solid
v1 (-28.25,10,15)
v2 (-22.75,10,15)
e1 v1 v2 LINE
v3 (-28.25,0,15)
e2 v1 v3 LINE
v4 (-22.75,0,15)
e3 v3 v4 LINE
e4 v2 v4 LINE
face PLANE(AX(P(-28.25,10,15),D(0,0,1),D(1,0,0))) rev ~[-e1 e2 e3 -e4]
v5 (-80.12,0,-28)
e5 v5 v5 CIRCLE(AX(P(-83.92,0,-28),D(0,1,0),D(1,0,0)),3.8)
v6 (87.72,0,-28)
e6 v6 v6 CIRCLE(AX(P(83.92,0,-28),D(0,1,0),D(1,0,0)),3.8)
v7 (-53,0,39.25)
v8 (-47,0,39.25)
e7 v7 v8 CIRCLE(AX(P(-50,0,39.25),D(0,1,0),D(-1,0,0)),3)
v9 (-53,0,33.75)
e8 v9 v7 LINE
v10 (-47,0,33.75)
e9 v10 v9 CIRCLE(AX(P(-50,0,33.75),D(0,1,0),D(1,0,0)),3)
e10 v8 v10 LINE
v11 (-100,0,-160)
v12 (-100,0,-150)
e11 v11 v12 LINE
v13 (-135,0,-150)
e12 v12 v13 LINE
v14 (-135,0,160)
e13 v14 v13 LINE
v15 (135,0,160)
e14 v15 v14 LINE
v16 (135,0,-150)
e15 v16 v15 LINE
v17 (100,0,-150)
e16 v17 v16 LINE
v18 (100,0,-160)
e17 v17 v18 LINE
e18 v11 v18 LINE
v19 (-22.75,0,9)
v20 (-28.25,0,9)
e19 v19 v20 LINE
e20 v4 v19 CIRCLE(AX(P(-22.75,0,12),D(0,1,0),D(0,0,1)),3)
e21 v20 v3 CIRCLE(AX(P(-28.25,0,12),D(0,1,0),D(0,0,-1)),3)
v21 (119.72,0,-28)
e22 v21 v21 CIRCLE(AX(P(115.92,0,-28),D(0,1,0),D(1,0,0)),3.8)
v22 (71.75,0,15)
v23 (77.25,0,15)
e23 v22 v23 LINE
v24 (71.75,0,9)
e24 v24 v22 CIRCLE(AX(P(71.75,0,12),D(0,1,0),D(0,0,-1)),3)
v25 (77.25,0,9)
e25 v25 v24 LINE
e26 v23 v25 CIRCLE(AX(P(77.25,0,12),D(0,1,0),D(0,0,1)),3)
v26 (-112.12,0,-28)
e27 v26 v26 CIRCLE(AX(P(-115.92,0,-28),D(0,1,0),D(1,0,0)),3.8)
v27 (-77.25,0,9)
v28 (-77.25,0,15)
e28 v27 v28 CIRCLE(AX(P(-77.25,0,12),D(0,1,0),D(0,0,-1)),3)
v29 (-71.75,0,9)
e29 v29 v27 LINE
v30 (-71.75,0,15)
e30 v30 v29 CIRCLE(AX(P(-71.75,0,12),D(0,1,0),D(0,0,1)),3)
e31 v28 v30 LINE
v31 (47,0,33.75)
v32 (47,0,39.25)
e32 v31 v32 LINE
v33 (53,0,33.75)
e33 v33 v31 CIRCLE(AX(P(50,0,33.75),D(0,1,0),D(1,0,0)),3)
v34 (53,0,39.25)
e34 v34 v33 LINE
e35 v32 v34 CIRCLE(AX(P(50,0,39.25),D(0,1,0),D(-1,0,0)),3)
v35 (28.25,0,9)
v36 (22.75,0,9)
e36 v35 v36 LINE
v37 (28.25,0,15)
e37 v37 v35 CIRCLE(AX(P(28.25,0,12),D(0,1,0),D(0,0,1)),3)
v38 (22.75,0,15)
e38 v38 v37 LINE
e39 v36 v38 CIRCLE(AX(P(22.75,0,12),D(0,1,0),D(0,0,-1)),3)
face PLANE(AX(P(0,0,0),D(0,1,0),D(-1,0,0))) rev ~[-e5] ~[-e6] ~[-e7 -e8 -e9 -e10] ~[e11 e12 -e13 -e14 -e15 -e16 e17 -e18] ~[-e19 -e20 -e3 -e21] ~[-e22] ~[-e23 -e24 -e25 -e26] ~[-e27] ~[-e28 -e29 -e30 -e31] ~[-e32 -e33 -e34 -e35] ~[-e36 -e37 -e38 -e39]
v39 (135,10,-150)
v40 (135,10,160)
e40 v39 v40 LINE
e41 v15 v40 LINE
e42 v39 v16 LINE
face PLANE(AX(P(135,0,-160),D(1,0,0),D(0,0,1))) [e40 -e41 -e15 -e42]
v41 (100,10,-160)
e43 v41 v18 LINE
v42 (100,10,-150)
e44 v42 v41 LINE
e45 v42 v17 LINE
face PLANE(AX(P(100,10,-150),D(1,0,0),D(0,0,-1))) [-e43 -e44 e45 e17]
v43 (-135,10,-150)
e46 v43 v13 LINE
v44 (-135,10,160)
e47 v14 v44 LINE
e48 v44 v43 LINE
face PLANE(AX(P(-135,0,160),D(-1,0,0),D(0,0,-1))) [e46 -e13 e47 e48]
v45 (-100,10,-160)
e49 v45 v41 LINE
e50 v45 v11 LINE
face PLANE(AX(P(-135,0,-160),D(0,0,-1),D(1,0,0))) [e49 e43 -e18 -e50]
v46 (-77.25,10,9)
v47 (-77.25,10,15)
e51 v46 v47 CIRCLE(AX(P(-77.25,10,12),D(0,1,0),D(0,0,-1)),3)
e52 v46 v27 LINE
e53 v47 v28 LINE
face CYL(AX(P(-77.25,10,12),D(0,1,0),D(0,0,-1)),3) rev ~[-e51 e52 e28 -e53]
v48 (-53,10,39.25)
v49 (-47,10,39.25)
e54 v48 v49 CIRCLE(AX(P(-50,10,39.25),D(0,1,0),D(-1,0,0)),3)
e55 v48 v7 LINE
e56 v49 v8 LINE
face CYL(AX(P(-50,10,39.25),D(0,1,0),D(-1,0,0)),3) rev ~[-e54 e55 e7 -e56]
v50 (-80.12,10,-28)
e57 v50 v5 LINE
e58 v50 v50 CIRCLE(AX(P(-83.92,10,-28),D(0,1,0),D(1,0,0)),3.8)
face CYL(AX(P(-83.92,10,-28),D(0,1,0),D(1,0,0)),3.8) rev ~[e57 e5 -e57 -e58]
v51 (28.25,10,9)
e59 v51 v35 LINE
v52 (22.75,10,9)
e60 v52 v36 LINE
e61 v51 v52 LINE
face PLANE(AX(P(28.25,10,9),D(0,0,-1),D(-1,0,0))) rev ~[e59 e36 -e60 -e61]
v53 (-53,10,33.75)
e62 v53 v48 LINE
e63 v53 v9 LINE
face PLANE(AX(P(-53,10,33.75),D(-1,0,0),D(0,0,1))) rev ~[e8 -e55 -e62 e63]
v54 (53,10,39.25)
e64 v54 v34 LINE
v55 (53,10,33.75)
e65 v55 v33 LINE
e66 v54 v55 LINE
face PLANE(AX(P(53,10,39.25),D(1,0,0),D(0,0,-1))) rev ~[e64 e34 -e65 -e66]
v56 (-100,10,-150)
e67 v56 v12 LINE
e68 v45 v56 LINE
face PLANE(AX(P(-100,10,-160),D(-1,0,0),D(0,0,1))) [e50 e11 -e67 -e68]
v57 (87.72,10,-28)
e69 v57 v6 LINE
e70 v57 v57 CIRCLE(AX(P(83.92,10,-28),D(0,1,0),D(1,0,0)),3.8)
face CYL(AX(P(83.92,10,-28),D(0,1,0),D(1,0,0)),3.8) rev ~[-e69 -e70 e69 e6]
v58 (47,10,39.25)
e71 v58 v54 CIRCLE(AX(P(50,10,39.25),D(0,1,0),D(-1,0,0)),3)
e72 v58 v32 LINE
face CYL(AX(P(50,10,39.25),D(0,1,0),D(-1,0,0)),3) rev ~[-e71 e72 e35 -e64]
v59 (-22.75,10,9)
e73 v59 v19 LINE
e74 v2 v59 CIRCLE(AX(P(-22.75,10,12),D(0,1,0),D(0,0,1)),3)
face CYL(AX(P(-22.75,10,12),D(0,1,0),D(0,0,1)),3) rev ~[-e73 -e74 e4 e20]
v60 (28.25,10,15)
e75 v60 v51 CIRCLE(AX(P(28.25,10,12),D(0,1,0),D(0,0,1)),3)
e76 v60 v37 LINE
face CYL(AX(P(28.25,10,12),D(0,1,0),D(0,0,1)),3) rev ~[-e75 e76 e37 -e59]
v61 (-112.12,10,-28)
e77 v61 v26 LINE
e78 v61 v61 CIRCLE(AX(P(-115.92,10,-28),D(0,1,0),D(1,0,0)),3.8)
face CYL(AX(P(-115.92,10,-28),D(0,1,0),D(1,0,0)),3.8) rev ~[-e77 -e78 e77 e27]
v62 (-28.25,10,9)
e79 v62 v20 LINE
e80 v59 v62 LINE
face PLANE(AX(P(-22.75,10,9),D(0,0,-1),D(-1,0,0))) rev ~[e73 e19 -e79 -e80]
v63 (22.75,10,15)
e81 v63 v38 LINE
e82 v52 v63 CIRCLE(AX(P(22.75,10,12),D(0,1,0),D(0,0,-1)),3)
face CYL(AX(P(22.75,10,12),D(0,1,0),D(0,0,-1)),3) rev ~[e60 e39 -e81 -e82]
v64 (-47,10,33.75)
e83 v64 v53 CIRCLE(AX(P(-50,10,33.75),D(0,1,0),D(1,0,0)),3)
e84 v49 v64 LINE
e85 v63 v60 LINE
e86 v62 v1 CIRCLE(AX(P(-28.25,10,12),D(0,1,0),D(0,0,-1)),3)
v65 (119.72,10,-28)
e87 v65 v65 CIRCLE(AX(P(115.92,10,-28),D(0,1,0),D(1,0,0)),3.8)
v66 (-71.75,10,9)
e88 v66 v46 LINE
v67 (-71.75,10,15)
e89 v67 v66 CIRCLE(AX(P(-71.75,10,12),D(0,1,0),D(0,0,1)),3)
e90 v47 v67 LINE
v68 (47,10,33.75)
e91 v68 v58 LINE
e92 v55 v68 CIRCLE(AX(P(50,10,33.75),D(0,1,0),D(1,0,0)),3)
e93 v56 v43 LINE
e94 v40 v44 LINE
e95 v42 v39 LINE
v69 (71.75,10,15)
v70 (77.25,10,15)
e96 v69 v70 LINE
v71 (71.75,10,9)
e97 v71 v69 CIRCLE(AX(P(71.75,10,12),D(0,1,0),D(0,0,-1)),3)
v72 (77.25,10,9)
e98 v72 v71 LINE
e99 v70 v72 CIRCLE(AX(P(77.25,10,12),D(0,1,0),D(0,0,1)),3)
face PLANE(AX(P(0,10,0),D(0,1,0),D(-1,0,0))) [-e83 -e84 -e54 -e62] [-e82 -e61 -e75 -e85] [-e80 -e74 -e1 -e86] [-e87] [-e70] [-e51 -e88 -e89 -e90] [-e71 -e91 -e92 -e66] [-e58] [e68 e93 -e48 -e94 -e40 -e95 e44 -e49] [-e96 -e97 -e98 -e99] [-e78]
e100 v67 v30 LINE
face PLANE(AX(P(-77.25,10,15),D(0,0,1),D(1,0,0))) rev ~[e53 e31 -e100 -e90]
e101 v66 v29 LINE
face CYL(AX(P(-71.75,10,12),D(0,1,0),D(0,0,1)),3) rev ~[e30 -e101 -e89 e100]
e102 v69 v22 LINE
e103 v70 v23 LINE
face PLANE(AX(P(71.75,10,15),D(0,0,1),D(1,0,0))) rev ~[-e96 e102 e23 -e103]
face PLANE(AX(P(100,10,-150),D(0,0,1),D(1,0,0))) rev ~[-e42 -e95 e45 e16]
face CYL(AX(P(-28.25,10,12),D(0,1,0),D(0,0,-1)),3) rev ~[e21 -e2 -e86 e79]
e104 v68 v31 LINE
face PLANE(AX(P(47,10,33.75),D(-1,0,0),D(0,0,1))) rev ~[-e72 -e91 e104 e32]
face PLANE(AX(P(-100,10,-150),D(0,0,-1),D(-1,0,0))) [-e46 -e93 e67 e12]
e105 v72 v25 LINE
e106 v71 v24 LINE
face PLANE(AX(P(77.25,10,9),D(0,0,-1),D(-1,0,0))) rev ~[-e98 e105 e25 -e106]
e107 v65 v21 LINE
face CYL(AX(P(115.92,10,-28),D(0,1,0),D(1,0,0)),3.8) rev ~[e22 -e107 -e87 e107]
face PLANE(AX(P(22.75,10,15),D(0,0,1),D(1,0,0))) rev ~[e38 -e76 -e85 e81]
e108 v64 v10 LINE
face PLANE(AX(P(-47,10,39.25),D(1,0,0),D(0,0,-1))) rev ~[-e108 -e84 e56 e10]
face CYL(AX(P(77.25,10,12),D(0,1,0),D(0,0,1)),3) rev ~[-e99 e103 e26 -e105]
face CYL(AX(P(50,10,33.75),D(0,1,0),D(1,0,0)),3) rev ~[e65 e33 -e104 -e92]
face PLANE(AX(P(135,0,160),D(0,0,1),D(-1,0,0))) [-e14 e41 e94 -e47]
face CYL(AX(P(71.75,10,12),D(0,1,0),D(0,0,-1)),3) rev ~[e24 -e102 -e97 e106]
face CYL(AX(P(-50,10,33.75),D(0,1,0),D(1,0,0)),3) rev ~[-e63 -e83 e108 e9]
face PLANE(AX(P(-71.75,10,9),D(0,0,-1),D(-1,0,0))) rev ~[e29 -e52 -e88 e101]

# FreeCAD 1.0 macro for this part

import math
import FreeCAD as App
import Part
import Sketcher
Q = App.Units.Quantity


def add_polygon(sketch, points):
    """Adds a closed chain of lines whose ends are joined by coincident constraints."""
    first, n = sketch.GeometryCount, len(points)
    for a, b in zip(points, points[1:] + points[:1]):
        sketch.addGeometry(Part.LineSegment(App.Vector(*a, 0), App.Vector(*b, 0)), False)
    for i in range(n):
        sketch.addConstraint(Sketcher.Constraint("Coincident", first + i, 2, first + (i + 1) % n, 1))

doc = App.newDocument("Part")
body = doc.addObject("PartDesign::Body", "Body")

# Sketch on XZ plane
sketch1 = body.newObject("Sketcher::SketchObject", "Sketch")
sketch1.AttachmentSupport = (doc.getObject("XZ_Plane"), [""])
sketch1.MapMode = "FlatFace"
add_polygon(sketch1, [(-135, 160), (135, 160), (135, -160), (-135, -160)])  # lines 0-3
sketch1.addConstraint([
    Sketcher.Constraint("Horizontal", 0),
    Sketcher.Constraint("Vertical", 1),
    Sketcher.Constraint("Horizontal", 2),
    Sketcher.Constraint("Vertical", 3),
    Sketcher.Constraint("Symmetric", 0, 2, 2, 2, -1, 1),
    Sketcher.Constraint("DistanceX", 0, 1, 0, 2, Q("270 mm")),
    Sketcher.Constraint("DistanceY", 1, 2, 1, 1, Q("320 mm")),
])
pad1 = body.newObject("PartDesign::Pad", "Pad")
pad1.Profile = sketch1
pad1.Length = 10
pad1.Reversed = True

# Sketch on XZ plane
sketch2 = body.newObject("Sketcher::SketchObject", "Sketch001")
sketch2.AttachmentSupport = (doc.getObject("XZ_Plane"), [""])
sketch2.MapMode = "FlatFace"
sketch2.AttachmentOffset = App.Placement(App.Vector(0, 0, -10), App.Rotation())
sketch2.addGeometry([
    Part.LineSegment(App.Vector(53, 39.2, 0), App.Vector(53, 33.8, 0)),  # 0
    Part.ArcOfCircle(Part.Circle(App.Vector(50, 33.8, 0), App.Vector(0, 0, 1), 3), math.radians(180), math.radians(360)),  # 1
    Part.LineSegment(App.Vector(47, 33.8, 0), App.Vector(47, 39.2, 0)),  # 2
    Part.ArcOfCircle(Part.Circle(App.Vector(50, 39.2, 0), App.Vector(0, 0, 1), 3), math.radians(0), math.radians(180)),  # 3
    Part.LineSegment(App.Vector(77.2, 9, 0), App.Vector(71.8, 9, 0)),  # 4
    Part.ArcOfCircle(Part.Circle(App.Vector(71.8, 12, 0), App.Vector(0, 0, 1), 3), math.radians(90), math.radians(270)),  # 5
    Part.LineSegment(App.Vector(71.8, 15, 0), App.Vector(77.2, 15, 0)),  # 6
    Part.ArcOfCircle(Part.Circle(App.Vector(77.2, 12, 0), App.Vector(0, 0, 1), 3), math.radians(-90), math.radians(90)),  # 7
    Part.LineSegment(App.Vector(22.8, 15, 0), App.Vector(28.2, 15, 0)),  # 8
    Part.ArcOfCircle(Part.Circle(App.Vector(28.2, 12, 0), App.Vector(0, 0, 1), 3), math.radians(-90), math.radians(90)),  # 9
    Part.LineSegment(App.Vector(28.2, 9, 0), App.Vector(22.8, 9, 0)),  # 10
    Part.ArcOfCircle(Part.Circle(App.Vector(22.8, 12, 0), App.Vector(0, 0, 1), 3), math.radians(90), math.radians(270)),  # 11
    Part.LineSegment(App.Vector(-22.8, 9, 0), App.Vector(-28.2, 9, 0)),  # 12
    Part.ArcOfCircle(Part.Circle(App.Vector(-28.2, 12, 0), App.Vector(0, 0, 1), 3), math.radians(90), math.radians(270)),  # 13
    Part.LineSegment(App.Vector(-28.2, 15, 0), App.Vector(-22.8, 15, 0)),  # 14
    Part.ArcOfCircle(Part.Circle(App.Vector(-22.8, 12, 0), App.Vector(0, 0, 1), 3), math.radians(-90), math.radians(90)),  # 15
    Part.LineSegment(App.Vector(-47, 39.2, 0), App.Vector(-47, 33.8, 0)),  # 16
    Part.ArcOfCircle(Part.Circle(App.Vector(-50, 33.8, 0), App.Vector(0, 0, 1), 3), math.radians(180), math.radians(360)),  # 17
    Part.LineSegment(App.Vector(-53, 33.8, 0), App.Vector(-53, 39.2, 0)),  # 18
    Part.ArcOfCircle(Part.Circle(App.Vector(-50, 39.2, 0), App.Vector(0, 0, 1), 3), math.radians(0), math.radians(180)),  # 19
    Part.LineSegment(App.Vector(-77.2, 15, 0), App.Vector(-71.8, 15, 0)),  # 20
    Part.ArcOfCircle(Part.Circle(App.Vector(-71.8, 12, 0), App.Vector(0, 0, 1), 3), math.radians(-90), math.radians(90)),  # 21
    Part.LineSegment(App.Vector(-71.8, 9, 0), App.Vector(-77.2, 9, 0)),  # 22
    Part.ArcOfCircle(Part.Circle(App.Vector(-77.2, 12, 0), App.Vector(0, 0, 1), 3), math.radians(90), math.radians(270)),  # 23
    Part.Circle(App.Vector(-115.9, -28, 0), App.Vector(0, 0, 1), 3.8),  # 24
    Part.Circle(App.Vector(-83.9, -28, 0), App.Vector(0, 0, 1), 3.8),  # 25
    Part.Circle(App.Vector(83.9, -28, 0), App.Vector(0, 0, 1), 3.8),  # 26
    Part.Circle(App.Vector(115.9, -28, 0), App.Vector(0, 0, 1), 3.8),  # 27
], False)
sketch2.addConstraint([
    Sketcher.Constraint("Tangent", 0, 2, 1, 2),
    Sketcher.Constraint("Tangent", 1, 1, 2, 1),
    Sketcher.Constraint("Tangent", 2, 2, 3, 2),
    Sketcher.Constraint("Tangent", 3, 1, 0, 1),
    Sketcher.Constraint("Tangent", 4, 2, 5, 2),
    Sketcher.Constraint("Tangent", 5, 1, 6, 1),
    Sketcher.Constraint("Tangent", 6, 2, 7, 2),
    Sketcher.Constraint("Tangent", 7, 1, 4, 1),
    Sketcher.Constraint("Tangent", 8, 2, 9, 2),
    Sketcher.Constraint("Tangent", 9, 1, 10, 1),
    Sketcher.Constraint("Tangent", 10, 2, 11, 2),
    Sketcher.Constraint("Tangent", 11, 1, 8, 1),
    Sketcher.Constraint("Tangent", 12, 2, 13, 2),
    Sketcher.Constraint("Tangent", 13, 1, 14, 1),
    Sketcher.Constraint("Tangent", 14, 2, 15, 2),
    Sketcher.Constraint("Tangent", 15, 1, 12, 1),
    Sketcher.Constraint("Tangent", 16, 2, 17, 2),
    Sketcher.Constraint("Tangent", 17, 1, 18, 1),
    Sketcher.Constraint("Tangent", 18, 2, 19, 2),
    Sketcher.Constraint("Tangent", 19, 1, 16, 1),
    Sketcher.Constraint("Tangent", 20, 2, 21, 2),
    Sketcher.Constraint("Tangent", 21, 1, 22, 1),
    Sketcher.Constraint("Tangent", 22, 2, 23, 2),
    Sketcher.Constraint("Tangent", 23, 1, 20, 1),
    Sketcher.Constraint("Vertical", 0),
    Sketcher.Constraint("Vertical", 2),
    Sketcher.Constraint("Horizontal", 4),
    Sketcher.Constraint("Horizontal", 6),
    Sketcher.Constraint("Horizontal", 8),
    Sketcher.Constraint("Horizontal", 10),
    Sketcher.Constraint("Horizontal", 12),
    Sketcher.Constraint("Horizontal", 14),
    Sketcher.Constraint("Vertical", 16),
    Sketcher.Constraint("Vertical", 18),
    Sketcher.Constraint("Horizontal", 20),
    Sketcher.Constraint("Horizontal", 22),
    Sketcher.Constraint("Equal", 3, 5),
    Sketcher.Constraint("Equal", 7, 9),
    Sketcher.Constraint("Equal", 11, 13),
    Sketcher.Constraint("Equal", 15, 17),
    Sketcher.Constraint("Equal", 19, 21),
    Sketcher.Constraint("Equal", 24, 25),
    Sketcher.Constraint("Equal", 25, 26),
    Sketcher.Constraint("Equal", 26, 27),
    Sketcher.Constraint("Symmetric", 9, 3, 13, 3, -2),
    Sketcher.Constraint("Symmetric", 1, 3, 17, 3, -2),
    Sketcher.Constraint("Symmetric", 5, 3, 21, 3, -2),
    Sketcher.Constraint("Symmetric", 25, 3, 26, 3, -2),
    Sketcher.Constraint("Symmetric", 24, 3, 27, 3, -2),
    Sketcher.Constraint("Horizontal", 7, 3, 9, 3),
    Sketcher.Constraint("Horizontal", 3, 3, 19, 3),
    Sketcher.Constraint("Horizontal", 24, 3, 25, 3),
    Sketcher.Constraint("Equal", 6, 8),
    Sketcher.Constraint("Equal", 10, 12),
    Sketcher.Constraint("Equal", 14, 20),
    Sketcher.Constraint("Equal", 22, 0),
    Sketcher.Constraint("Radius", 1, Q("3 mm")),
    Sketcher.Constraint("Diameter", 24, Q("7.6 mm")),
    Sketcher.Constraint("DistanceX", 4, 2, 4, 1, Q("5.5 mm")),
    Sketcher.Constraint("DistanceX", -1, 1, 1, 3, Q("50 mm")),
    Sketcher.Constraint("DistanceY", -1, 1, 5, 3, Q("12 mm")),
    Sketcher.Constraint("DistanceY", 24, 3, -1, 1, Q("28 mm")),
    Sketcher.Constraint("DistanceX", 9, 3, 7, 3, Q("49 mm")),
    Sketcher.Constraint("DistanceX", 13, 3, 11, 3, Q("51 mm")),
    Sketcher.Constraint("DistanceX", 24, 3, 25, 3, Q("32 mm")),
    Sketcher.Constraint("DistanceY", -1, 1, 1, 3, Q("33.75 mm")),
    Sketcher.Constraint("DistanceX", 24, 3, -1, 1, Q("115.92 mm")),
])
pocket1 = body.newObject("PartDesign::Pocket", "Pocket")
pocket1.Profile = sketch2
pocket1.Length = 10
pocket1.Reversed = True

# Sketch on XZ plane
sketch3 = body.newObject("Sketcher::SketchObject", "Sketch002")
sketch3.AttachmentSupport = (doc.getObject("XZ_Plane"), [""])
sketch3.MapMode = "FlatFace"
sketch3.AttachmentOffset = App.Placement(App.Vector(0, 0, -10), App.Rotation())
add_polygon(sketch3, [(135, -150), (135, -160), (100, -160), (100, -150)])  # lines 0-3
add_polygon(sketch3, [(-100, -150), (-100, -160), (-135, -160), (-135, -150)])  # lines 4-7
sketch3.addConstraint([
    Sketcher.Constraint("Vertical", 0),
    Sketcher.Constraint("Horizontal", 1),
    Sketcher.Constraint("Vertical", 2),
    Sketcher.Constraint("Horizontal", 3),
    Sketcher.Constraint("Vertical", 4),
    Sketcher.Constraint("Horizontal", 5),
    Sketcher.Constraint("Vertical", 6),
    Sketcher.Constraint("Horizontal", 7),
    Sketcher.Constraint("Symmetric", 1, 2, 4, 2, -2),
    Sketcher.Constraint("Symmetric", 3, 2, 6, 2, -2),
    Sketcher.Constraint("DistanceY", 0, 2, 0, 1, Q("10 mm")),
    Sketcher.Constraint("DistanceX", 4, 2, 1, 2, Q("200 mm")),
    Sketcher.Constraint("DistanceX", 1, 2, 1, 1, Q("35 mm")),
    Sketcher.Constraint("DistanceY", 0, 2, -1, 1, Q("160 mm")),
])
pocket2 = body.newObject("PartDesign::Pocket", "Pocket001")
pocket2.Profile = sketch3
pocket2.Length = 49.25
pocket2.Reversed = True

doc.recompute()
